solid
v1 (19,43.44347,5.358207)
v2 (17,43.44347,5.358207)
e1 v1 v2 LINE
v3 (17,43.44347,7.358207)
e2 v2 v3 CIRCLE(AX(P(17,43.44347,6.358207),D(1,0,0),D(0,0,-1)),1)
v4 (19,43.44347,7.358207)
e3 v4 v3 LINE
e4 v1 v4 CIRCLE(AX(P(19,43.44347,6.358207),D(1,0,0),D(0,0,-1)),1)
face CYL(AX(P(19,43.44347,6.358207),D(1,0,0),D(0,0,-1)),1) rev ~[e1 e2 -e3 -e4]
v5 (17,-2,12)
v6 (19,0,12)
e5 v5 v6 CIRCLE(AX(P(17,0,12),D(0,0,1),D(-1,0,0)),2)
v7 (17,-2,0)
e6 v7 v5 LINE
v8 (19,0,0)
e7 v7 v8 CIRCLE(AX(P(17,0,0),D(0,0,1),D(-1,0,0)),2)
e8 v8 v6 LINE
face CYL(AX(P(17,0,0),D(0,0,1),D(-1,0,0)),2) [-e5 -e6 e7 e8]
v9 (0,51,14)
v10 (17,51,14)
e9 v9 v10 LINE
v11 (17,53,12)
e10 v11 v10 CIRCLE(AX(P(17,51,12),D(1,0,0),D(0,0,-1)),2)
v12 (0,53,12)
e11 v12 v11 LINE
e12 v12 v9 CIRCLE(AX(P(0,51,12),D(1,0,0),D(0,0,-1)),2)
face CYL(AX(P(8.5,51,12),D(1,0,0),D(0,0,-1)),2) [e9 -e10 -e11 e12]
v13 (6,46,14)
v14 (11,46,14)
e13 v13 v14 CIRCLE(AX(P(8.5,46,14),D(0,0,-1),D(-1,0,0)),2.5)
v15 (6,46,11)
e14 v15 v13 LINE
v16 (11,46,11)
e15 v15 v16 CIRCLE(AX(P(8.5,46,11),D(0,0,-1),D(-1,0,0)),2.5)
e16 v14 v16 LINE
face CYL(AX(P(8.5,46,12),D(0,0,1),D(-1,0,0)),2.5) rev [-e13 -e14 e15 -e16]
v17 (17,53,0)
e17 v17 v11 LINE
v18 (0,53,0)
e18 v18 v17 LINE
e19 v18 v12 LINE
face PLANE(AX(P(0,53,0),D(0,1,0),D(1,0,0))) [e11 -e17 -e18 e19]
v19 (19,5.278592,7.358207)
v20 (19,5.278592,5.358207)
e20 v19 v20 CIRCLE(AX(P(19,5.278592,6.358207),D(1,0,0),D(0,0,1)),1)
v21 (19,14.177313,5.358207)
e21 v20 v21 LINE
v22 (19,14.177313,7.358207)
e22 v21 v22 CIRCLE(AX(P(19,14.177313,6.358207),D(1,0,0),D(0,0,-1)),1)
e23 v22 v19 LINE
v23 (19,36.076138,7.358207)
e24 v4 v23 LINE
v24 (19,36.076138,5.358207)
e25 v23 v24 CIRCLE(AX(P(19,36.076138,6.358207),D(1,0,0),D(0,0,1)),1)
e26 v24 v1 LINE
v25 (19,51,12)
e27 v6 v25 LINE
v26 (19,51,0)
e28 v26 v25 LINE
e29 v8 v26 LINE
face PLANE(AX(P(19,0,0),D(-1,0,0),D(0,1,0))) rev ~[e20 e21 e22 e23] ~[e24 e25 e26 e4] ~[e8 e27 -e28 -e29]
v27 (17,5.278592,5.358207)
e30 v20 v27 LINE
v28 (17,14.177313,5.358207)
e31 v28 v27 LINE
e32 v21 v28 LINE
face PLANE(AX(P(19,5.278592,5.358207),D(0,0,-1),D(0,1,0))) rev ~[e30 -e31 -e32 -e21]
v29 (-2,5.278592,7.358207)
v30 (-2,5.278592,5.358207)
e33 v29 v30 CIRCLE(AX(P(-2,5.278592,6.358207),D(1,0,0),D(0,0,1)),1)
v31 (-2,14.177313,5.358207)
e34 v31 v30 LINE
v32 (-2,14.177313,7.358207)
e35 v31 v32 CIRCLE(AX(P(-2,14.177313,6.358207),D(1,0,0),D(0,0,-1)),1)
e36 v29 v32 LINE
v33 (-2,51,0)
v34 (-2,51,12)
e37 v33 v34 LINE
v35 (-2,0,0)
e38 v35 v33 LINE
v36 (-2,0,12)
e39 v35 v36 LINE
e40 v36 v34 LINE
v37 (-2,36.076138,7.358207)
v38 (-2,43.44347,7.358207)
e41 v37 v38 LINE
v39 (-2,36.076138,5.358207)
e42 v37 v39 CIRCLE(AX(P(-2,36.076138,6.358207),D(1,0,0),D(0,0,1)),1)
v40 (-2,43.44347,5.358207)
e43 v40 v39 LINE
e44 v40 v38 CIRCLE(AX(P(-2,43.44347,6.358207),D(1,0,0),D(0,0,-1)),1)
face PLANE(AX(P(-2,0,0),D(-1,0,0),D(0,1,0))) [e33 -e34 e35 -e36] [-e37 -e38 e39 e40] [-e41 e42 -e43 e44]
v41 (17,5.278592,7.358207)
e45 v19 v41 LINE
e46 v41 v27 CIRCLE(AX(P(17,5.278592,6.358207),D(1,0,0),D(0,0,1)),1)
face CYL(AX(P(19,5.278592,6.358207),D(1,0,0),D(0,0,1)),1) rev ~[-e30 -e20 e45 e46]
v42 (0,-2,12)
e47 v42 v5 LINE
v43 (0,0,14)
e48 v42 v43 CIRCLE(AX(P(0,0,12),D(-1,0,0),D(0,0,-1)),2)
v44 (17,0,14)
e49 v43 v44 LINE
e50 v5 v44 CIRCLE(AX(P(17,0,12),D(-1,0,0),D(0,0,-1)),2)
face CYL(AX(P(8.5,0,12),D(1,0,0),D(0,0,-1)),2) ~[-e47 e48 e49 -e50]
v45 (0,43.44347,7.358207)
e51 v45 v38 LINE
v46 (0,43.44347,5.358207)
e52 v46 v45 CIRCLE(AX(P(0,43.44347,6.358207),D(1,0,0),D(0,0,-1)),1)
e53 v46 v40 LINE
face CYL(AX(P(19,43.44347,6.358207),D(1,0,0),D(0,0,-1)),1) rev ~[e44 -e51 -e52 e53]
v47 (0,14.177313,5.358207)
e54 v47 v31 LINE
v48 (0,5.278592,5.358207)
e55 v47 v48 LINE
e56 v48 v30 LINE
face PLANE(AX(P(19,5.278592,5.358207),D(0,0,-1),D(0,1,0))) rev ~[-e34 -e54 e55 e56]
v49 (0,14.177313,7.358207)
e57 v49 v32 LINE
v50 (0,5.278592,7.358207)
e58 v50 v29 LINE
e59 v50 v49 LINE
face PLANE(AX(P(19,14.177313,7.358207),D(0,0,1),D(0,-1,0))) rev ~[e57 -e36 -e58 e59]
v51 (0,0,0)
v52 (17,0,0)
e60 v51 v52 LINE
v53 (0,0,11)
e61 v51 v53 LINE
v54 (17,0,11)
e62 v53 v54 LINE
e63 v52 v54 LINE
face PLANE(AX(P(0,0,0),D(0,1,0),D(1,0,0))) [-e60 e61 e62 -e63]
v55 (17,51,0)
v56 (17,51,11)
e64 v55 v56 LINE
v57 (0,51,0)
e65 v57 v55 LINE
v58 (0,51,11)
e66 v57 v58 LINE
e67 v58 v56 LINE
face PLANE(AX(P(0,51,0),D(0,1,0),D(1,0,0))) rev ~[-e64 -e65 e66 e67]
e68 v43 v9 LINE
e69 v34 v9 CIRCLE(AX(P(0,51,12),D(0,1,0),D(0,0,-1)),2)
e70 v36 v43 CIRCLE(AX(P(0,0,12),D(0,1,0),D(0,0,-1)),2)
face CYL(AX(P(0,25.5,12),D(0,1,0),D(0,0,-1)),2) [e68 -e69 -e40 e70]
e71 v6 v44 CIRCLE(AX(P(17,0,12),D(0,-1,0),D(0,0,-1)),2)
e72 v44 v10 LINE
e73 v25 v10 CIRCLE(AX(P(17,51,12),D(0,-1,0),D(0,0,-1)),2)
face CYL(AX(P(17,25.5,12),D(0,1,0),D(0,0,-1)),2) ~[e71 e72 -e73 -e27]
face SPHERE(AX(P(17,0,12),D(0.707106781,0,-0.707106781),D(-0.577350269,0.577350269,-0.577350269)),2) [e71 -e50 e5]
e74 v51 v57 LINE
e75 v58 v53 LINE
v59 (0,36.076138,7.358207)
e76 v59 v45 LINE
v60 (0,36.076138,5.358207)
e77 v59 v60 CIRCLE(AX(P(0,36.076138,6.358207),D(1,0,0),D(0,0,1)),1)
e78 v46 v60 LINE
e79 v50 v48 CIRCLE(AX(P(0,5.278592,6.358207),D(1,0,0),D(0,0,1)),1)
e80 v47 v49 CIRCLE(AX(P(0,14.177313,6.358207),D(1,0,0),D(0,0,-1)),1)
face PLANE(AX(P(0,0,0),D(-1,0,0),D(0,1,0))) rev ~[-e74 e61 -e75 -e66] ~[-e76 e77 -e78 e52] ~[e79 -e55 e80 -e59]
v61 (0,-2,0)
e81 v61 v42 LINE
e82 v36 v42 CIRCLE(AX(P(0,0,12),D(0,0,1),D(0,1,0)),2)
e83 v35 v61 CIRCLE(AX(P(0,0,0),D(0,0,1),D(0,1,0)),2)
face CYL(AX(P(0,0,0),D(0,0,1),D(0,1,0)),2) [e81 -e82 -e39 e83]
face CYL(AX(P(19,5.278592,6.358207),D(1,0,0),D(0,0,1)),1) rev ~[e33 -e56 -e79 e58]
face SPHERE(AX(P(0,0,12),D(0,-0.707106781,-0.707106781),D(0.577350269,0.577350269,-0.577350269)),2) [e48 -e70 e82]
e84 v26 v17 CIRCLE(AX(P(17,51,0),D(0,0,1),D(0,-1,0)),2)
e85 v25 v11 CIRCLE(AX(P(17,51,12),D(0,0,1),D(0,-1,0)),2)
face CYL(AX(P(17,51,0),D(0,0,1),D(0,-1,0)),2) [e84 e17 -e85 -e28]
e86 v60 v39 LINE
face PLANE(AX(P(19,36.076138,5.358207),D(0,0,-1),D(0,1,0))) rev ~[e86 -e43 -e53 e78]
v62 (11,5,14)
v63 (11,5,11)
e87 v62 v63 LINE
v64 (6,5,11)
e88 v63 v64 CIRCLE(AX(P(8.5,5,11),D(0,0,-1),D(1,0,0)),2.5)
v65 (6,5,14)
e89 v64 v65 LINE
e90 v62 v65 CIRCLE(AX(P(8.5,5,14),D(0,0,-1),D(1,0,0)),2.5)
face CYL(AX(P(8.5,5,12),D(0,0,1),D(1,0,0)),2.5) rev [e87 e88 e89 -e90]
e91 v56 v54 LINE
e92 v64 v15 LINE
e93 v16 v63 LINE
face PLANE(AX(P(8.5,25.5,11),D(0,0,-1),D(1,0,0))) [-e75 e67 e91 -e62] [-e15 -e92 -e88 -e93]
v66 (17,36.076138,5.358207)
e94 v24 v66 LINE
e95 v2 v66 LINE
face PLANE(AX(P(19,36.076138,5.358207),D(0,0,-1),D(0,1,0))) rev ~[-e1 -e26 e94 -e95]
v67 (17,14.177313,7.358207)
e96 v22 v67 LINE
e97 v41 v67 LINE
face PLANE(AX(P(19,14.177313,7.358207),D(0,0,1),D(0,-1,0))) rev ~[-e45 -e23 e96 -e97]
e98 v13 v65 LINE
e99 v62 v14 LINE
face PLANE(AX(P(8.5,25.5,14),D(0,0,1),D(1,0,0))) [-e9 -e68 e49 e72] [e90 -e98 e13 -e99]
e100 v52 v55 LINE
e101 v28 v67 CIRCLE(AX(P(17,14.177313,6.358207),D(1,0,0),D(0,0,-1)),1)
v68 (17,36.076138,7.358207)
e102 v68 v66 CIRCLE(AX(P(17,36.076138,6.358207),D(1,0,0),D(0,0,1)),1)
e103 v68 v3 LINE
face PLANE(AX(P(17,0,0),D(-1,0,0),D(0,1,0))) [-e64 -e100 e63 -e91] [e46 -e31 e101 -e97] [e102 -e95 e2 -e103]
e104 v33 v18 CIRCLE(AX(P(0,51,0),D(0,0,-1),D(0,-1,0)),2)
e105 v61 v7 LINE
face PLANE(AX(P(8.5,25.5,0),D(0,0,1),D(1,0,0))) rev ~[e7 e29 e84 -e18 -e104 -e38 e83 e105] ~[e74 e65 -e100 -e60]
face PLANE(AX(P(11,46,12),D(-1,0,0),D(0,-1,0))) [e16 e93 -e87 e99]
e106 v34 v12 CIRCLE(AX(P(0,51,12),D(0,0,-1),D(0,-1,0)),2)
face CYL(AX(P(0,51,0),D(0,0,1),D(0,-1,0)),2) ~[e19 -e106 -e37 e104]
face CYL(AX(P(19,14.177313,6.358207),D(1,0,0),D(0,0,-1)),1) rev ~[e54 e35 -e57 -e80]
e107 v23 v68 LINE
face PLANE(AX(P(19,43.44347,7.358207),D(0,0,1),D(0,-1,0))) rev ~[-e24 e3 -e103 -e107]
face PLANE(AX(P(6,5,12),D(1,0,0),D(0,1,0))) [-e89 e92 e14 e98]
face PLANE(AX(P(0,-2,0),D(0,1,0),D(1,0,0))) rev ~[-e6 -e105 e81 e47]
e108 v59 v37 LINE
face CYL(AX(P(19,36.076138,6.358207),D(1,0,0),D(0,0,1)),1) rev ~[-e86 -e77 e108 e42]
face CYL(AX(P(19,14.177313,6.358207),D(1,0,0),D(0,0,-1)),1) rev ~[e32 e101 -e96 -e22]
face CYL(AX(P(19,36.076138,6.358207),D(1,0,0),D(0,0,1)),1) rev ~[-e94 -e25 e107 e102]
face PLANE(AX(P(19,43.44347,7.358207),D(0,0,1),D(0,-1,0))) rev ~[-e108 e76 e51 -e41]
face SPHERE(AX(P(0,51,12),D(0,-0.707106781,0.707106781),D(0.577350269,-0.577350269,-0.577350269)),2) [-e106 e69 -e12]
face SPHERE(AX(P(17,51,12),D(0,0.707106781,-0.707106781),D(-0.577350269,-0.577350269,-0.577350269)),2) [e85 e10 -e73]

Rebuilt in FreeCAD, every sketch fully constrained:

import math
import FreeCAD as App
import Part
import Sketcher


def faces_at(feature, points):
    """Names of the faces that lie closest to the given points."""
    faces = feature.Shape.Faces
    near = lambda p: min(range(len(faces)), key=lambda i: faces[i].distToShape(Part.Vertex(*p))[0])
    return sorted({f"Face{near(p) + 1}" for p in points})


def add_polygon(sketch, points):
    """Adds a closed chain of lines whose ends are joined by coincident constraints."""
    first, n = sketch.GeometryCount, len(points)
    for a, b in zip(points, points[1:] + points[:1]):
        sketch.addGeometry(Part.LineSegment(App.Vector(*a, 0), App.Vector(*b, 0)), False)
    for i in range(n):
        sketch.addConstraint(Sketcher.Constraint("Coincident", first + i, 2, first + (i + 1) % n, 1))

doc = App.newDocument("Part")
body = doc.addObject("PartDesign::Body", "Body")

sketch1 = body.newObject("Sketcher::SketchObject", "Sketch")
sketch1.AttachmentSupport = (doc.getObject("XY_Plane"), [""])
sketch1.MapMode = "FlatFace"
add_polygon(sketch1, [(0, 51), (0, 0), (17, 0), (17, 51)])
sketch1.addConstraint([
    Sketcher.Constraint("Vertical", 0),
    Sketcher.Constraint("Horizontal", 1),
    Sketcher.Constraint("Vertical", 2),
    Sketcher.Constraint("Horizontal", 3),
    Sketcher.Constraint("Coincident", 0, 2, -1, 1),
    Sketcher.Constraint("DistanceX", 1, 1, 1, 2, 17.0),
    Sketcher.Constraint("DistanceY", 0, 2, 0, 1, 51.0),
])
pad1 = body.newObject("PartDesign::Pad", "Pad")
pad1.Profile = sketch1
pad1.Length = 12
doc.recompute()

thickness = body.newObject("PartDesign::Thickness", "Thickness")
thickness.Base = (pad1, faces_at(pad1, [(8.5, 25.5, 0)]))
thickness.Value = 2
thickness.Reversed = False
thickness.Join = "Arc"

sketch2 = body.newObject("Sketcher::SketchObject", "Sketch001")
sketch2.AttachmentSupport = (doc.getObject("XY_Plane"), [""])
sketch2.MapMode = "FlatFace"
sketch2.AttachmentOffset = App.Placement(App.Vector(0, 0, 12), App.Rotation())
sketch2.addGeometry([
    Part.ArcOfCircle(Part.Circle(App.Vector(8.5, 5, 0), App.Vector(0, 0, 1), 2.5), math.radians(180), math.radians(360)),
    Part.LineSegment(App.Vector(6, 5, 0), App.Vector(6, 46, 0)),
    Part.ArcOfCircle(Part.Circle(App.Vector(8.5, 46, 0), App.Vector(0, 0, 1), 2.5), math.radians(0), math.radians(180)),
    Part.LineSegment(App.Vector(11, 46, 0), App.Vector(11, 5, 0)),
], False)
sketch2.addConstraint([
    Sketcher.Constraint("Tangent", 0, 1, 1, 1),
    Sketcher.Constraint("Tangent", 1, 2, 2, 2),
    Sketcher.Constraint("Tangent", 2, 1, 3, 1),
    Sketcher.Constraint("Tangent", 3, 2, 0, 2),
    Sketcher.Constraint("Vertical", 1),
    Sketcher.Constraint("Vertical", 3),
    Sketcher.Constraint("Radius", 0, 2.5),
    Sketcher.Constraint("DistanceY", 1, 1, 1, 2, 41.0),
    Sketcher.Constraint("DistanceY", -1, 1, 0, 3, 5.0),
    Sketcher.Constraint("DistanceX", -1, 1, 0, 1, 6.0),
])
pocket1 = body.newObject("PartDesign::Pocket", "Pocket")
pocket1.Profile = sketch2
pocket1.Type = "ThroughAll"
pocket1.Reversed = True

sketch3 = body.newObject("Sketcher::SketchObject", "Sketch002")
sketch3.AttachmentSupport = (doc.getObject("XY_Plane"), [""])
sketch3.MapMode = "FlatFace"
sketch3.AttachmentOffset = App.Placement(App.Vector(0, 0, 12), App.Rotation())
add_polygon(sketch3, [(0, 0), (0, 51), (17, 51), (17, 0)])
sketch3.addGeometry(Part.ArcOfCircle(Part.Circle(App.Vector(8.5, 5, 0), App.Vector(0, 0, 1), 2.5), math.radians(180), math.radians(360)), False)
sketch3.addGeometry(Part.LineSegment(App.Vector(11, 5, 0), App.Vector(11, 46, 0)), False)
sketch3.addGeometry(Part.ArcOfCircle(Part.Circle(App.Vector(8.5, 46, 0), App.Vector(0, 0, 1), 2.5), math.radians(0), math.radians(180)), False)
sketch3.addGeometry(Part.LineSegment(App.Vector(6, 46, 0), App.Vector(6, 5, 0)), False)
sketch3.addConstraint([
    Sketcher.Constraint("Tangent", 4, 2, 5, 1),
    Sketcher.Constraint("Tangent", 5, 2, 6, 1),
    Sketcher.Constraint("Tangent", 6, 2, 7, 1),
    Sketcher.Constraint("Tangent", 7, 2, 4, 1),
    Sketcher.Constraint("Vertical", 0),
    Sketcher.Constraint("Horizontal", 1),
    Sketcher.Constraint("Vertical", 2),
    Sketcher.Constraint("Horizontal", 3),
    Sketcher.Constraint("Vertical", 5),
    Sketcher.Constraint("Vertical", 7),
    Sketcher.Constraint("Coincident", 3, 2, -1, 1),
    Sketcher.Constraint("Radius", 4, 2.5),
    Sketcher.Constraint("DistanceX", 1, 1, 1, 2, 17.0),
    Sketcher.Constraint("DistanceY", 0, 1, 0, 2, 51.0),
    Sketcher.Constraint("DistanceY", 5, 1, 5, 2, 41.0),
    Sketcher.Constraint("DistanceY", -1, 1, 4, 3, 5.0),
    Sketcher.Constraint("DistanceX", -1, 1, 4, 2, 11.0),
])
pad2 = body.newObject("PartDesign::Pad", "Pad001")
pad2.Profile = sketch3
pad2.Length = 1
pad2.Reversed = True

sketch4 = body.newObject("Sketcher::SketchObject", "Sketch003")
sketch4.AttachmentSupport = (doc.getObject("YZ_Plane"), [""])
sketch4.MapMode = "FlatFace"
sketch4.AttachmentOffset = App.Placement(App.Vector(0, 0, 19), App.Rotation())
sketch4.addGeometry([
    Part.ArcOfCircle(Part.Circle(App.Vector(36.076138, 6.358207, 0), App.Vector(0, 0, 1), 1), math.radians(90), math.radians(270)),
    Part.LineSegment(App.Vector(36.076138, 5.358207, 0), App.Vector(43.44347, 5.358207, 0)),
    Part.ArcOfCircle(Part.Circle(App.Vector(43.44347, 6.358207, 0), App.Vector(0, 0, 1), 1), math.radians(-90), math.radians(90)),
    Part.LineSegment(App.Vector(43.44347, 7.358207, 0), App.Vector(36.076138, 7.358207, 0)),
    Part.ArcOfCircle(Part.Circle(App.Vector(5.278592, 6.358207, 0), App.Vector(0, 0, 1), 1), math.radians(90), math.radians(270)),
    Part.LineSegment(App.Vector(5.278592, 5.358207, 0), App.Vector(14.177313, 5.358207, 0)),
    Part.ArcOfCircle(Part.Circle(App.Vector(14.177313, 6.358207, 0), App.Vector(0, 0, 1), 1), math.radians(-90), math.radians(90)),
    Part.LineSegment(App.Vector(14.177313, 7.358207, 0), App.Vector(5.278592, 7.358207, 0)),
], False)
sketch4.addConstraint([
    Sketcher.Constraint("Tangent", 0, 2, 1, 1),
    Sketcher.Constraint("Tangent", 1, 2, 2, 1),
    Sketcher.Constraint("Tangent", 2, 2, 3, 1),
    Sketcher.Constraint("Tangent", 3, 2, 0, 1),
    Sketcher.Constraint("Tangent", 4, 2, 5, 1),
    Sketcher.Constraint("Tangent", 5, 2, 6, 1),
    Sketcher.Constraint("Tangent", 6, 2, 7, 1),
    Sketcher.Constraint("Tangent", 7, 2, 4, 1),
    Sketcher.Constraint("Horizontal", 1),
    Sketcher.Constraint("Horizontal", 3),
    Sketcher.Constraint("Horizontal", 5),
    Sketcher.Constraint("Horizontal", 7),
    Sketcher.Constraint("Equal", 2, 4),
    Sketcher.Constraint("Horizontal", 2, 3, 4, 3),
    Sketcher.Constraint("Radius", 0, 1.0),
    Sketcher.Constraint("DistanceX", 1, 1, 1, 2, 7.367332),
    Sketcher.Constraint("DistanceX", 5, 1, 5, 2, 8.898721),
    Sketcher.Constraint("DistanceX", -1, 1, 2, 3, 43.44347),
    Sketcher.Constraint("DistanceX", -1, 1, 4, 3, 5.278592),
    Sketcher.Constraint("DistanceY", -1, 1, 0, 3, 6.358207),
])
pocket2 = body.newObject("PartDesign::Pocket", "Pocket001")
pocket2.Profile = sketch4
pocket2.Type = "ThroughAll"

doc.recompute()
